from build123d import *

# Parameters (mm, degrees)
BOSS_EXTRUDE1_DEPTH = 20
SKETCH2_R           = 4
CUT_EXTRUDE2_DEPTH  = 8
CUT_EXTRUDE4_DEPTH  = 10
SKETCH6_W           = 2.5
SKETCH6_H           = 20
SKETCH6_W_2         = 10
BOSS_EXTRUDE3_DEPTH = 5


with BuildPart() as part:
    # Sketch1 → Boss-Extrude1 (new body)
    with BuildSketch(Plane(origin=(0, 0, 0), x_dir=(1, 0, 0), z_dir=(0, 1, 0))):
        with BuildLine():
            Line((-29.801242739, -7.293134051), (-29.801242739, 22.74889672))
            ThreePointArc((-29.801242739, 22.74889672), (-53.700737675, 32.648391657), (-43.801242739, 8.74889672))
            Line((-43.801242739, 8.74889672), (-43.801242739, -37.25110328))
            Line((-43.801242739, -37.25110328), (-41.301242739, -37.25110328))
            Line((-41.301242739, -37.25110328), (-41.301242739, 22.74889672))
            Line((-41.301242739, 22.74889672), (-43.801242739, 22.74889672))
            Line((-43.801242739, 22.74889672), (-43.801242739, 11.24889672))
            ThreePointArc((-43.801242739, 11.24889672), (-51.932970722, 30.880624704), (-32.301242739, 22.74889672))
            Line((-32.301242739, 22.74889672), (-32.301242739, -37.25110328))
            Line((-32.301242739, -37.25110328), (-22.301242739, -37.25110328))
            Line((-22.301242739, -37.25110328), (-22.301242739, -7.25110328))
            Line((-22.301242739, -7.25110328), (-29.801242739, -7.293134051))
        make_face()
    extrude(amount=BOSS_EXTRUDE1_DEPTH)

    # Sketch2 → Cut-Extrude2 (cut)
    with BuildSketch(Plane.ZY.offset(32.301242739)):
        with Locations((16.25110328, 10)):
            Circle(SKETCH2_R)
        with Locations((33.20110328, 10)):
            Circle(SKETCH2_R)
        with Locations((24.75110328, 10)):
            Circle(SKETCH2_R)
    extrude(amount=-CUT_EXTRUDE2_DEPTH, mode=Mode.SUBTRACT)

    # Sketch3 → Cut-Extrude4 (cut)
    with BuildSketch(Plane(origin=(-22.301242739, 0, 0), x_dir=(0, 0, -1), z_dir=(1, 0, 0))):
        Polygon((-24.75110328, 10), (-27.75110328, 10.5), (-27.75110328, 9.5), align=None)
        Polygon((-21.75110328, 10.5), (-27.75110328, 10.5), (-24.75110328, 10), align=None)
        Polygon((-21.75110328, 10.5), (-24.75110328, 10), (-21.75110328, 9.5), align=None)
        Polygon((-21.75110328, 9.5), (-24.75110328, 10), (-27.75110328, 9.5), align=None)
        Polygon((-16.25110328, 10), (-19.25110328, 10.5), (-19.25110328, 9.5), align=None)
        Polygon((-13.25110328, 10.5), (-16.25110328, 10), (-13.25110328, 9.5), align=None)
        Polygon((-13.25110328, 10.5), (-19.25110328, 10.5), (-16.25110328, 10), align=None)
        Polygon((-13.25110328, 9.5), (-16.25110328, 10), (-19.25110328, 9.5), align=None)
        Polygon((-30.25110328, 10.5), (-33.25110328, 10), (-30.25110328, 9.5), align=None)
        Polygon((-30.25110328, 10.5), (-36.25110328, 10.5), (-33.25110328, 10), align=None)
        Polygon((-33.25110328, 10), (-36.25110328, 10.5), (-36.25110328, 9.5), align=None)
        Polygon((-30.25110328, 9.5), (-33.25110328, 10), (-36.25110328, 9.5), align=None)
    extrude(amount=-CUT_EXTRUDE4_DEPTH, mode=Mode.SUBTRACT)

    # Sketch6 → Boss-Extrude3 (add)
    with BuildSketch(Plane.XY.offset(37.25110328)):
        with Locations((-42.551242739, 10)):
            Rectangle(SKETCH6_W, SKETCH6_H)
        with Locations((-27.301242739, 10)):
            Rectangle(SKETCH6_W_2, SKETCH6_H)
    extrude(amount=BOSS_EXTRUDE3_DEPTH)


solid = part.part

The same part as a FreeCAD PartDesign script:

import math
import FreeCAD as App
import Part
import Sketcher

V = App.Vector

doc = App.newDocument("Part")
body = doc.addObject("PartDesign::Body", "Body")

sketch1 = body.newObject("Sketcher::SketchObject", "Sketch")
sketch1.AttachmentSupport = (doc.getObject("XZ_Plane"), [""])
sketch1.MapMode = "FlatFace"
sketch1.addGeometry([
    Part.LineSegment(V(-29.801243, 7.293134, 0), V(-29.801243, -22.748897, 0)),
    Part.ArcOfCircle(Part.Circle(V(-43.801243, -22.748897, 0), V(0, 0, 1), 14), math.radians(90), math.radians(360)),
    Part.LineSegment(V(-43.801243, -8.748897, 0), V(-43.801243, 37.251103, 0)),
    Part.LineSegment(V(-43.801243, 37.251103, 0), V(-41.301243, 37.251103, 0)),
    Part.LineSegment(V(-41.301243, 37.251103, 0), V(-41.301243, -22.748897, 0)),
    Part.LineSegment(V(-41.301243, -22.748897, 0), V(-43.801243, -22.748897, 0)),
    Part.LineSegment(V(-43.801243, -22.748897, 0), V(-43.801243, -11.248897, 0)),
    Part.ArcOfCircle(Part.Circle(V(-43.801243, -22.748897, 0), V(0, 0, 1), 11.5), math.radians(90), math.radians(360)),
    Part.LineSegment(V(-32.301243, -22.748897, 0), V(-32.301243, 37.251103, 0)),
    Part.LineSegment(V(-32.301243, 37.251103, 0), V(-22.301243, 37.251103, 0)),
    Part.LineSegment(V(-22.301243, 37.251103, 0), V(-22.301243, 7.251103, 0)),
    Part.LineSegment(V(-22.301243, 7.251103, 0), V(-29.801243, 7.293134, 0)),
], False)
sketch1.addConstraint([
    Sketcher.Constraint("Tangent", 0, 2, 1, 2),
    Sketcher.Constraint("Coincident", 1, 1, 2, 1),
    Sketcher.Constraint("Coincident", 2, 2, 3, 1),
    Sketcher.Constraint("Coincident", 3, 2, 4, 1),
    Sketcher.Constraint("Coincident", 4, 2, 5, 1),
    Sketcher.Constraint("Coincident", 5, 2, 6, 1),
    Sketcher.Constraint("Coincident", 6, 2, 7, 1),
    Sketcher.Constraint("Tangent", 7, 2, 8, 1),
    Sketcher.Constraint("Coincident", 8, 2, 9, 1),
    Sketcher.Constraint("Coincident", 9, 2, 10, 1),
    Sketcher.Constraint("Coincident", 10, 2, 11, 1),
    Sketcher.Constraint("Coincident", 11, 2, 0, 1),
    Sketcher.Constraint("Vertical", 0),
    Sketcher.Constraint("Vertical", 2),
    Sketcher.Constraint("Horizontal", 3),
    Sketcher.Constraint("Vertical", 4),
    Sketcher.Constraint("Horizontal", 5),
    Sketcher.Constraint("Vertical", 6),
    Sketcher.Constraint("Vertical", 8),
    Sketcher.Constraint("Horizontal", 9),
    Sketcher.Constraint("Vertical", 10),
    Sketcher.Constraint("Coincident", 7, 3, 1, 3),
    Sketcher.Constraint("Coincident", 5, 2, 1, 3),
    Sketcher.Constraint("Horizontal", 3, 2, 8, 2),
    Sketcher.Constraint("Vertical", 7, 3, 1, 1),
    Sketcher.Constraint("Radius", 1, 14.0),
    Sketcher.Constraint("Radius", 7, 11.5),
    Sketcher.Constraint("DistanceX", 9, 1, 9, 2, 10.0),
    Sketcher.Constraint("DistanceY", 2, 1, 2, 2, 46.0),
    Sketcher.Constraint("DistanceY", 10, 2, 10, 1, 30.0),
    Sketcher.Constraint("DistanceX", 3, 1, 3, 2, 2.5),
    Sketcher.Constraint("DistanceY", 0, 2, 0, 1, 30.042031),
    Sketcher.Constraint("DistanceX", 1, 3, -1, 1, 43.801243),
    Sketcher.Constraint("DistanceY", 1, 3, -1, 1, 22.748897),
])
pad1 = body.newObject("PartDesign::Pad", "Pad")
pad1.Profile = sketch1
pad1.Length = 20
pad1.Reversed = True

sketch2 = body.newObject("Sketcher::SketchObject", "Sketch001")
sketch2.AttachmentSupport = (doc.getObject("YZ_Plane"), [""])
sketch2.MapMode = "FlatFace"
sketch2.AttachmentOffset = App.Placement(V(0, 0, -32.301243), App.Rotation())
sketch2.addGeometry([
    Part.Circle(V(10, 16.251103, 0), V(0, 0, 1), 4),
    Part.Circle(V(10, 33.201103, 0), V(0, 0, 1), 4),
    Part.Circle(V(10, 24.751103, 0), V(0, 0, 1), 4),
], False)
sketch2.addConstraint([
    Sketcher.Constraint("Equal", 0, 1),
    Sketcher.Constraint("Equal", 1, 2),
    Sketcher.Constraint("Vertical", 0, 3, 1, 3),
    Sketcher.Constraint("Vertical", 1, 3, 2, 3),
    Sketcher.Constraint("Diameter", 0, 8.0),
    Sketcher.Constraint("DistanceX", -1, 1, 0, 3, 10.0),
    Sketcher.Constraint("DistanceY", 0, 3, 2, 3, 8.5),
    Sketcher.Constraint("DistanceY", 0, 3, 1, 3, 16.95),
    Sketcher.Constraint("DistanceY", -1, 1, 0, 3, 16.251103),
])
pocket1 = body.newObject("PartDesign::Pocket", "Pocket")
pocket1.Profile = sketch2
pocket1.Length = 8
pocket1.Reversed = True

sketch3 = body.newObject("Sketcher::SketchObject", "Sketch002")
sketch3.AttachmentSupport = (doc.getObject("YZ_Plane"), [""])
sketch3.MapMode = "FlatFace"
sketch3.AttachmentOffset = App.Placement(V(0, 0, -22.301243), App.Rotation())
sketch3.addGeometry([
    Part.LineSegment(V(10.5, 27.751103, 0), V(9.5, 27.751103, 0)),
    Part.LineSegment(V(9.5, 27.751103, 0), V(9.5, 21.751103, 0)),
    Part.LineSegment(V(9.5, 21.751103, 0), V(10.5, 21.751103, 0)),
    Part.LineSegment(V(10.5, 21.751103, 0), V(10.5, 27.751103, 0)),
    Part.LineSegment(V(10.5, 19.251103, 0), V(9.5, 19.251103, 0)),
    Part.LineSegment(V(9.5, 19.251103, 0), V(9.5, 13.251103, 0)),
    Part.LineSegment(V(9.5, 13.251103, 0), V(10.5, 13.251103, 0)),
    Part.LineSegment(V(10.5, 13.251103, 0), V(10.5, 19.251103, 0)),
    Part.LineSegment(V(9.5, 30.251103, 0), V(10.5, 30.251103, 0)),
    Part.LineSegment(V(10.5, 30.251103, 0), V(10.5, 36.251103, 0)),
    Part.LineSegment(V(10.5, 36.251103, 0), V(9.5, 36.251103, 0)),
    Part.LineSegment(V(9.5, 36.251103, 0), V(9.5, 30.251103, 0)),
], False)
sketch3.addConstraint([
    Sketcher.Constraint("Coincident", 0, 2, 1, 1),
    Sketcher.Constraint("Coincident", 1, 2, 2, 1),
    Sketcher.Constraint("Coincident", 2, 2, 3, 1),
    Sketcher.Constraint("Coincident", 3, 2, 0, 1),
    Sketcher.Constraint("Coincident", 4, 2, 5, 1),
    Sketcher.Constraint("Coincident", 5, 2, 6, 1),
    Sketcher.Constraint("Coincident", 6, 2, 7, 1),
    Sketcher.Constraint("Coincident", 7, 2, 4, 1),
    Sketcher.Constraint("Coincident", 8, 2, 9, 1),
    Sketcher.Constraint("Coincident", 9, 2, 10, 1),
    Sketcher.Constraint("Coincident", 10, 2, 11, 1),
    Sketcher.Constraint("Coincident", 11, 2, 8, 1),
    Sketcher.Constraint("Horizontal", 0),
    Sketcher.Constraint("Vertical", 1),
    Sketcher.Constraint("Horizontal", 2),
    Sketcher.Constraint("Vertical", 3),
    Sketcher.Constraint("Horizontal", 4),
    Sketcher.Constraint("Vertical", 5),
    Sketcher.Constraint("Horizontal", 6),
    Sketcher.Constraint("Vertical", 7),
    Sketcher.Constraint("Horizontal", 8),
    Sketcher.Constraint("Vertical", 9),
    Sketcher.Constraint("Horizontal", 10),
    Sketcher.Constraint("Vertical", 11),
    Sketcher.Constraint("Vertical", 1, 2, 4, 2),
    Sketcher.Constraint("Vertical", 3, 2, 6, 2),
    Sketcher.Constraint("Vertical", 7, 2, 8, 2),
    Sketcher.Constraint("Vertical", 5, 2, 10, 2),
    Sketcher.Constraint("Equal", 3, 5),
    Sketcher.Constraint("Equal", 7, 9),
    Sketcher.Constraint("DistanceX", 0, 2, 0, 1, 1.0),
    Sketcher.Constraint("DistanceY", 1, 2, 1, 1, 6.0),
    Sketcher.Constraint("DistanceY", 7, 2, 8, 2, 11.0),
    Sketcher.Constraint("DistanceX", -1, 1, 0, 2, 9.5),
    Sketcher.Constraint("DistanceY", 4, 2, 1, 2, 2.5),
    Sketcher.Constraint("DistanceY", -1, 1, 0, 2, 27.751103),
])
pocket2 = body.newObject("PartDesign::Pocket", "Pocket001")
pocket2.Profile = sketch3
pocket2.Length = 10

sketch4 = body.newObject("Sketcher::SketchObject", "Sketch003")
sketch4.AttachmentSupport = (doc.getObject("XY_Plane"), [""])
sketch4.MapMode = "FlatFace"
sketch4.AttachmentOffset = App.Placement(V(0, 0, 37.251103), App.Rotation())
sketch4.addGeometry([
    Part.LineSegment(V(-43.801243, 20, 0), V(-43.801243, 0, 0)),
    Part.LineSegment(V(-43.801243, 0, 0), V(-41.301243, 0, 0)),
    Part.LineSegment(V(-41.301243, 0, 0), V(-41.301243, 20, 0)),
    Part.LineSegment(V(-41.301243, 20, 0), V(-43.801243, 20, 0)),
    Part.LineSegment(V(-32.301243, 20, 0), V(-32.301243, 0, 0)),
    Part.LineSegment(V(-32.301243, 0, 0), V(-22.301243, 0, 0)),
    Part.LineSegment(V(-22.301243, 0, 0), V(-22.301243, 20, 0)),
    Part.LineSegment(V(-22.301243, 20, 0), V(-32.301243, 20, 0)),
], False)
sketch4.addConstraint([
    Sketcher.Constraint("Coincident", 0, 2, 1, 1),
    Sketcher.Constraint("Coincident", 1, 2, 2, 1),
    Sketcher.Constraint("Coincident", 2, 2, 3, 1),
    Sketcher.Constraint("Coincident", 3, 2, 0, 1),
    Sketcher.Constraint("Coincident", 4, 2, 5, 1),
    Sketcher.Constraint("Coincident", 5, 2, 6, 1),
    Sketcher.Constraint("Coincident", 6, 2, 7, 1),
    Sketcher.Constraint("Coincident", 7, 2, 4, 1),
    Sketcher.Constraint("Vertical", 0),
    Sketcher.Constraint("Horizontal", 1),
    Sketcher.Constraint("Vertical", 2),
    Sketcher.Constraint("Horizontal", 3),
    Sketcher.Constraint("Vertical", 4),
    Sketcher.Constraint("Horizontal", 5),
    Sketcher.Constraint("Vertical", 6),
    Sketcher.Constraint("Horizontal", 7),
    Sketcher.Constraint("PointOnObject", 0, 2, -1),
    Sketcher.Constraint("PointOnObject", 4, 2, -1),
    Sketcher.Constraint("Horizontal", 3, 2, 6, 2),
    Sketcher.Constraint("DistanceX", 5, 1, 5, 2, 10.0),
    Sketcher.Constraint("DistanceY", 0, 2, 0, 1, 20.0),
    Sketcher.Constraint("DistanceX", 1, 1, 1, 2, 2.5),
    Sketcher.Constraint("DistanceX", 1, 2, 4, 2, 9.0),
    Sketcher.Constraint("DistanceX", 0, 2, -1, 1, 43.801243),
])
pad2 = body.newObject("PartDesign::Pad", "Pad001")
pad2.Profile = sketch4
pad2.Length = 5

doc.recompute()
